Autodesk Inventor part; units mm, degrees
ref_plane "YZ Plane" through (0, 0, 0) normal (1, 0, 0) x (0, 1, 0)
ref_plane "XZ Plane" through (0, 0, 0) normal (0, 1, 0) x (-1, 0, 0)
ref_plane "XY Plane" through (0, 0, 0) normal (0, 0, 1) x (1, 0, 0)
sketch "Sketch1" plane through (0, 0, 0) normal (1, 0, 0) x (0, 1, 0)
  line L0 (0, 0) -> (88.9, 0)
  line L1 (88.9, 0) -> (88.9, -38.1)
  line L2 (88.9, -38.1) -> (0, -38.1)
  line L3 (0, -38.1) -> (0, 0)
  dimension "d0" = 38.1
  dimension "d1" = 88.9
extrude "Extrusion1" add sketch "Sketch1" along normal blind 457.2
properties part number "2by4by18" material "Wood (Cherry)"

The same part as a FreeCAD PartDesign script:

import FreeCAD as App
import Part
import Sketcher
Q = App.Units.Quantity


def add_polygon(sketch, points):
    """Adds a closed chain of lines whose ends are joined by coincident constraints."""
    first, n = sketch.GeometryCount, len(points)
    for a, b in zip(points, points[1:] + points[:1]):
        sketch.addGeometry(Part.LineSegment(App.Vector(*a, 0), App.Vector(*b, 0)), False)
    for i in range(n):
        sketch.addConstraint(Sketcher.Constraint("Coincident", first + i, 2, first + (i + 1) % n, 1))

doc = App.newDocument("Part")
params = doc.addObject("Spreadsheet::Sheet", "Params")
for row, (alias, value) in enumerate([
    ("sketch1_width", "3.5 in"),
    ("sketch1_height", "1.5 in"),
    ("pad1_length", "18 in"),
], start=1):
    params.set(f"A{row}", alias)
    params.set(f"B{row}", "=" + value)
    params.setAlias(f"B{row}", alias)

body = doc.addObject("PartDesign::Body", "Body")

sketch1 = doc.addObject("Sketcher::SketchObject", "Sketch")
body.addObject(sketch1)
sketch1.AttachmentSupport = (doc.YZ_Plane, [""])
sketch1.MapMode = "FlatFace"
add_polygon(sketch1, [(89, 0), (0, 0), (0, -38), (89, -38)])
sketch1.addConstraint([
    Sketcher.Constraint("Horizontal", 0),
    Sketcher.Constraint("Vertical", 1),
    Sketcher.Constraint("Horizontal", 2),
    Sketcher.Constraint("Vertical", 3),
    Sketcher.Constraint("Coincident", 0, 2, -1, 1),
    Sketcher.Constraint("DistanceX", 0, 2, 0, 1, Q("3.5 in")),
    Sketcher.Constraint("DistanceY", 1, 2, 1, 1, Q("1.5 in")),
])
sketch1.setExpression("Constraints[9]", "Params.sketch1_width")
sketch1.setExpression("Constraints[10]", "Params.sketch1_height")
pad1 = doc.addObject("PartDesign::Pad", "Pad")
body.addObject(pad1)
pad1.Profile = sketch1
pad1.setExpression("Length", "Params.pad1_length")

doc.recompute()
